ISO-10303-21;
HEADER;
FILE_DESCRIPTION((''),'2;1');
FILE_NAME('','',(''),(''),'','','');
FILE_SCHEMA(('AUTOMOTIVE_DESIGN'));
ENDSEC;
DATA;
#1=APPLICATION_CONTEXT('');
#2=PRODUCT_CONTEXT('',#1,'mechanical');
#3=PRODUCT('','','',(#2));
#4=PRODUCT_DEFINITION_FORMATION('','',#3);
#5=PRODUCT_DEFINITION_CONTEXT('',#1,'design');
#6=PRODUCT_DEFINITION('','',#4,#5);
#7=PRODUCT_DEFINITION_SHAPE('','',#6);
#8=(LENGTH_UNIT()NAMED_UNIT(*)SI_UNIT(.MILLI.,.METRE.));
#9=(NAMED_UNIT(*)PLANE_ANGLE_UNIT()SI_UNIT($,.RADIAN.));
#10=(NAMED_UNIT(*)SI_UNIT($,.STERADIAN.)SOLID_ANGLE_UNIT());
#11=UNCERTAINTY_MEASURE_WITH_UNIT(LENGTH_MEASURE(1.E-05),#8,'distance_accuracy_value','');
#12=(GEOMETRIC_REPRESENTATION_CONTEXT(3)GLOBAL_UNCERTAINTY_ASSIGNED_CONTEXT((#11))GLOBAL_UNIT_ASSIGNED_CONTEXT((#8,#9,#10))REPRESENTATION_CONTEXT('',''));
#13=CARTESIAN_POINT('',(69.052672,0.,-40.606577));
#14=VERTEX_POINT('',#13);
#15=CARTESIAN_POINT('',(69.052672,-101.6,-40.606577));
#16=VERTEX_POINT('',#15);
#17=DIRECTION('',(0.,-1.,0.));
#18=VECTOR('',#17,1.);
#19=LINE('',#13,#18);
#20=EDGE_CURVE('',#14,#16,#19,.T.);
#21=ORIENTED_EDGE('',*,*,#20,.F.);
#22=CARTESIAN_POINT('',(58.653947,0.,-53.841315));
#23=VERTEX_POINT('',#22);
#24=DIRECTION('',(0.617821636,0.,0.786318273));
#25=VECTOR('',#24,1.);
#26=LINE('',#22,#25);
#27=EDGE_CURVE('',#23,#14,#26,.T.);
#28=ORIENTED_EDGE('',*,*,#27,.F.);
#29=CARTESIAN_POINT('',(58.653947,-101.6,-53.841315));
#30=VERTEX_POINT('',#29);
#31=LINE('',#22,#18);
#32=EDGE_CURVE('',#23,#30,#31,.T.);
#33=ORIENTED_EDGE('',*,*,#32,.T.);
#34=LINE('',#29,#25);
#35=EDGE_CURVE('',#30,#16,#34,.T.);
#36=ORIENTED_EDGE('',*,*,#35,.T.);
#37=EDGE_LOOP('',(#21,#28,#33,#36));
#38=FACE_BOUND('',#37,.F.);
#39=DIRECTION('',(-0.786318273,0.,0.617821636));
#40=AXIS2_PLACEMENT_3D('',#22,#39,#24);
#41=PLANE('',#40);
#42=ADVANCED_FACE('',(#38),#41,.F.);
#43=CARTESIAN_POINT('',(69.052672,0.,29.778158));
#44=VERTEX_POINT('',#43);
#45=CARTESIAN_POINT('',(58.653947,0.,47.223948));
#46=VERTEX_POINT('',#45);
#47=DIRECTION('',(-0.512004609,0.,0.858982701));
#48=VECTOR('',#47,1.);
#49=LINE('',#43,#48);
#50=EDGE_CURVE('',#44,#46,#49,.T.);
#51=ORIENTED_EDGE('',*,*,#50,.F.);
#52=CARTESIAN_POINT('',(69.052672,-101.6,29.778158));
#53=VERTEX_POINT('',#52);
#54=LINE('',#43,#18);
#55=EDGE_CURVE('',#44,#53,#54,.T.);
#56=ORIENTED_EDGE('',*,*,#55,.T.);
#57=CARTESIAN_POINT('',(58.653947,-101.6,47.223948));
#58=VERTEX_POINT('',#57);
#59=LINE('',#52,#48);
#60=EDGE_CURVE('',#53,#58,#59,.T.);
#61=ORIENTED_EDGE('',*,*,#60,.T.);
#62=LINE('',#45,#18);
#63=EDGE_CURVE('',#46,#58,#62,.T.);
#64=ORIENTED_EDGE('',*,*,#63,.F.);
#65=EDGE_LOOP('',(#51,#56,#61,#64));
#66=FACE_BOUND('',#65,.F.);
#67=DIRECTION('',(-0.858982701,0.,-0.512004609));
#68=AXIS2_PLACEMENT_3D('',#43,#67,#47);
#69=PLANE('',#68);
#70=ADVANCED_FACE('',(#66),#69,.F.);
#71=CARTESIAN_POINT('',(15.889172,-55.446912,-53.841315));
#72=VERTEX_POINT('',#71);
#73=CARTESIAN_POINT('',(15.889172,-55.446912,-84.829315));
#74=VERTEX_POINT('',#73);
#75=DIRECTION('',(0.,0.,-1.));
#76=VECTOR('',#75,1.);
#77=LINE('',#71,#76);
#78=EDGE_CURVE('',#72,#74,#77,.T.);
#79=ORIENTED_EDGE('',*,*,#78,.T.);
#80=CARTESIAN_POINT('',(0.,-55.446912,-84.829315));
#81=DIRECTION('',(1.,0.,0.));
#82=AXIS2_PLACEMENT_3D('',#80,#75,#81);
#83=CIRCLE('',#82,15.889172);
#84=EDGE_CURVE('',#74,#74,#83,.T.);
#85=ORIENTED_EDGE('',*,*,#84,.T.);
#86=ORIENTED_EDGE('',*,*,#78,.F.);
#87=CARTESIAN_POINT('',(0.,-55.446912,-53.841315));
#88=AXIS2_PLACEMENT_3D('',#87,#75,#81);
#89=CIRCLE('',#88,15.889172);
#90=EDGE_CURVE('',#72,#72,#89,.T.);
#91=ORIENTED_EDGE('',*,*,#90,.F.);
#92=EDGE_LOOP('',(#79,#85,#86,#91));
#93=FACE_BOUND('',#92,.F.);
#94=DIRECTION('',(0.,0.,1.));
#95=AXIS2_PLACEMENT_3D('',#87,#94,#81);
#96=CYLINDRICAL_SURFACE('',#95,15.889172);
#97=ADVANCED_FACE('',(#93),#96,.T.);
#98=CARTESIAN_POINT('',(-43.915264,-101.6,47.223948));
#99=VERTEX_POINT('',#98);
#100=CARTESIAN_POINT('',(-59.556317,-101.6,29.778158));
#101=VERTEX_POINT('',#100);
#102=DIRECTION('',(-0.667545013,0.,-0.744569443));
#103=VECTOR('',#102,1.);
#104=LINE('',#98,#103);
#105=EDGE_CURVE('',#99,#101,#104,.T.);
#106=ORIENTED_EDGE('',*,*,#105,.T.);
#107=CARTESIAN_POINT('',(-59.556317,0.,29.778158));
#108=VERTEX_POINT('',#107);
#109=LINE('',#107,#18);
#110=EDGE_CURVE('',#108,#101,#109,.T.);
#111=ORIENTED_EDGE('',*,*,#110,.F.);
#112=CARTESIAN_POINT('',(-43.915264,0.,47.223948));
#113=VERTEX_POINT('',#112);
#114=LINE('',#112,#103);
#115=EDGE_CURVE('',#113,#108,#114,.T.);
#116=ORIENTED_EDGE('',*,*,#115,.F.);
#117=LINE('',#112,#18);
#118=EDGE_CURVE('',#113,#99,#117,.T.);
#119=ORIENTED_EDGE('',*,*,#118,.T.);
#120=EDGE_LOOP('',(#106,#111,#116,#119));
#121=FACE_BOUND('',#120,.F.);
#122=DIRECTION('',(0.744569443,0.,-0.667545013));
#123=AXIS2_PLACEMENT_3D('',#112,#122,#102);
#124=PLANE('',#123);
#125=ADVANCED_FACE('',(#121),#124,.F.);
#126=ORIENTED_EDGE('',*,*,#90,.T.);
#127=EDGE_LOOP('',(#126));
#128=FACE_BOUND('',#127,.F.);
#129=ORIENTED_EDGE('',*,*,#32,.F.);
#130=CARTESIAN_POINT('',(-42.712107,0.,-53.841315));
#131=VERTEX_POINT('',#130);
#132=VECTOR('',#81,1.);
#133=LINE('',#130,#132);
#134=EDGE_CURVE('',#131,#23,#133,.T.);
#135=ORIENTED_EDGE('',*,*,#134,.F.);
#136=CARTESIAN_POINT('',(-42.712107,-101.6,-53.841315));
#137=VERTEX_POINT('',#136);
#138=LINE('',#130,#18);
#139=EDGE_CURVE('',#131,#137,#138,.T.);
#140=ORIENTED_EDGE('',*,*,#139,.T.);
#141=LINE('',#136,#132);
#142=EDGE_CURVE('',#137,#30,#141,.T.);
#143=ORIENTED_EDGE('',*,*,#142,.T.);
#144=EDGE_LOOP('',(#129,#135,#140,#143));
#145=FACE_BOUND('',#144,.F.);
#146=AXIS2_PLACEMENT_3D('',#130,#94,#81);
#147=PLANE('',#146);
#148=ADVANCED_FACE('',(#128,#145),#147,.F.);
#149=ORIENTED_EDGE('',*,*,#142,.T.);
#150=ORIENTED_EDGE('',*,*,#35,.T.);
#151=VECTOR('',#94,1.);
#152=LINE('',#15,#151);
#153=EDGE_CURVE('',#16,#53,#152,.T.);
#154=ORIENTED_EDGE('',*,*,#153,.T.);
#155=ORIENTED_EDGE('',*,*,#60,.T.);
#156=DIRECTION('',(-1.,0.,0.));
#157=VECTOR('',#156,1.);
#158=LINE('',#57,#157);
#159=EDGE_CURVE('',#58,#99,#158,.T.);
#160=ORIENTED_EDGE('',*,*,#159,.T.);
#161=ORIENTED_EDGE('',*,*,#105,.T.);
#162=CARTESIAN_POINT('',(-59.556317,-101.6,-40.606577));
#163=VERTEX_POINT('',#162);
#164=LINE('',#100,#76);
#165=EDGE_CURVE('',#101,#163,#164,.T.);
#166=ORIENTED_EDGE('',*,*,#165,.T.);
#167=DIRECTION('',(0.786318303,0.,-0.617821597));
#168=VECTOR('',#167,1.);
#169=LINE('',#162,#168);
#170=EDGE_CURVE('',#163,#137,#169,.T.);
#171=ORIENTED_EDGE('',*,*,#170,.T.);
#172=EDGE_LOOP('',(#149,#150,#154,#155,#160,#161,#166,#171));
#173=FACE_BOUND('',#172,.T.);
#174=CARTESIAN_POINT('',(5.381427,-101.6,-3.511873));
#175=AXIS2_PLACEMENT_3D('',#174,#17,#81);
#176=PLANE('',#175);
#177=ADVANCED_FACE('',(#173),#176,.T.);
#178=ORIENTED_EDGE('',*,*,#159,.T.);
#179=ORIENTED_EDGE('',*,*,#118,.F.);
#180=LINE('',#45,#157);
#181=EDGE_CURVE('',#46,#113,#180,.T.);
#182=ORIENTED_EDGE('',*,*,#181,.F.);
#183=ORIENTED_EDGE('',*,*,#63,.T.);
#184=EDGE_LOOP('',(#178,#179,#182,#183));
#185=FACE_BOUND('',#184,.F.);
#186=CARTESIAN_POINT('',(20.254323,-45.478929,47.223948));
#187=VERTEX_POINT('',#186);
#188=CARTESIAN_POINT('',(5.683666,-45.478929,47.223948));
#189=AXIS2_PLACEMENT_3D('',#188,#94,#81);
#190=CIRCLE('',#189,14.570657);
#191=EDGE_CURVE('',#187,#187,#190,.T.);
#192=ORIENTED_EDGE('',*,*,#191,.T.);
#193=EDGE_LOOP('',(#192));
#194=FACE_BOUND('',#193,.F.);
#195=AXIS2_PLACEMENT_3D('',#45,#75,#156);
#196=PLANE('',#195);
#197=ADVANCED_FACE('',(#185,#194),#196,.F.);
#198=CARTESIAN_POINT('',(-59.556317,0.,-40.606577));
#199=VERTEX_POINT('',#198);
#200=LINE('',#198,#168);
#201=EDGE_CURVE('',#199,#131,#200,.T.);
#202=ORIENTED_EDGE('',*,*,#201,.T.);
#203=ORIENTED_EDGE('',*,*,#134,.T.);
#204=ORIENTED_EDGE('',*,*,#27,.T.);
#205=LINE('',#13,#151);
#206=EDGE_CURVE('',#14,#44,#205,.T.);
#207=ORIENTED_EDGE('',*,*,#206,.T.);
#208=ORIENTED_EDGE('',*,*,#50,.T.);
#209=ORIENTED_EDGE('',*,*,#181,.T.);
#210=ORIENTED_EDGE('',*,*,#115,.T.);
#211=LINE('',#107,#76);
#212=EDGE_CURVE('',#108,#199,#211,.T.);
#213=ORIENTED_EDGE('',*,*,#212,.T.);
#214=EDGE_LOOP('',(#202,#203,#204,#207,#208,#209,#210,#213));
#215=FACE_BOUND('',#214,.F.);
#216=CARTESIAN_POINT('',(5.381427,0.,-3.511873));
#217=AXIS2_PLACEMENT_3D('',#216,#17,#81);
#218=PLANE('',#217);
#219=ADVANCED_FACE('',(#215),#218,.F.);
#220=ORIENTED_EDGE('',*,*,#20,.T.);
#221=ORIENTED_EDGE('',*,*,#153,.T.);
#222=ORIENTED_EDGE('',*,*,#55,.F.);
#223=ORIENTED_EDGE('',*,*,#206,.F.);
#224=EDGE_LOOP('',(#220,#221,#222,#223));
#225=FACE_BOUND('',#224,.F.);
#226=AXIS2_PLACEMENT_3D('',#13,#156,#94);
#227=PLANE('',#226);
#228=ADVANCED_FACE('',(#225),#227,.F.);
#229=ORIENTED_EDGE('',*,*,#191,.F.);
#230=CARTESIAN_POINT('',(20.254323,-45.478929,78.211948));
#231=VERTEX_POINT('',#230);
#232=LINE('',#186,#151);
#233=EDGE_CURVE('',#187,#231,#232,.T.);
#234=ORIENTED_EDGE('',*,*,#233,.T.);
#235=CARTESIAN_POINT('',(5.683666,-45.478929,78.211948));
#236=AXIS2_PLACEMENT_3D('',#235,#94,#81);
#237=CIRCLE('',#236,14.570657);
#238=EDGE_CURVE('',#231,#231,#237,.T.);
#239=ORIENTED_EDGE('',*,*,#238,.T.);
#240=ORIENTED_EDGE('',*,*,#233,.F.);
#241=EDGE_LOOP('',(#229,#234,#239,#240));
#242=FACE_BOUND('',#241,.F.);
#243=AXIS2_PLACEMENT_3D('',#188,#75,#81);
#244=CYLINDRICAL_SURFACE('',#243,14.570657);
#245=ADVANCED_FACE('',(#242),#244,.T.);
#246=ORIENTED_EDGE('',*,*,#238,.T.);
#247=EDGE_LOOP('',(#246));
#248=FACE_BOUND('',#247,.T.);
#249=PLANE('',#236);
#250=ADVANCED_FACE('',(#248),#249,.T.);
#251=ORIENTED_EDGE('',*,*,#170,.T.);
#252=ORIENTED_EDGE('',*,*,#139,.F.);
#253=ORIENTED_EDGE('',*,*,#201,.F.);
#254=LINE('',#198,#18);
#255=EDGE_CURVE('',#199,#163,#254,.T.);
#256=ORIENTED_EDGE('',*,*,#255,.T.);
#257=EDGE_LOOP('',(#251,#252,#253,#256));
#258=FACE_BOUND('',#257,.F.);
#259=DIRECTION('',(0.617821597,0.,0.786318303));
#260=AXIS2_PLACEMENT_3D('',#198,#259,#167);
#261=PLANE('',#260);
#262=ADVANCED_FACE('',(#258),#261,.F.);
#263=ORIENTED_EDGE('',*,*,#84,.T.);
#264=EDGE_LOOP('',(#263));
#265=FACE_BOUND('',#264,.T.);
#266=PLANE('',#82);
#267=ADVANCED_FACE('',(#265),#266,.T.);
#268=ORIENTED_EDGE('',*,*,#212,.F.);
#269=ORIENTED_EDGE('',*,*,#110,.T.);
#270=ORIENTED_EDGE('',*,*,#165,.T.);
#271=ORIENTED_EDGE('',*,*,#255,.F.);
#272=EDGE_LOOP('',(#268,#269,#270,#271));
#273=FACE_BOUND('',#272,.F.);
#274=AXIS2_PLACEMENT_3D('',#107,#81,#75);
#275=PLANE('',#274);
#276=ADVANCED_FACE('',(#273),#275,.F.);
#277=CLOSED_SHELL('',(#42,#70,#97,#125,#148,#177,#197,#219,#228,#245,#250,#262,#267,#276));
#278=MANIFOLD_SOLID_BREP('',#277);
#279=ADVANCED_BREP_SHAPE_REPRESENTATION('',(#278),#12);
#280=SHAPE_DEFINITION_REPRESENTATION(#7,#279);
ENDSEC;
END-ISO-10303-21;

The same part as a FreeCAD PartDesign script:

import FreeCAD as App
import Part
import Sketcher
from FreeCAD import Vector
Q = App.Units.Quantity


def add_polygon(sketch, points):
    """Adds a closed chain of lines whose ends are joined by coincident constraints."""
    first, n = sketch.GeometryCount, len(points)
    for a, b in zip(points, points[1:] + points[:1]):
        sketch.addGeometry(Part.LineSegment(App.Vector(*a, 0), App.Vector(*b, 0)), False)
    for i in range(n):
        sketch.addConstraint(Sketcher.Constraint("Coincident", first + i, 2, first + (i + 1) % n, 1))

doc = App.newDocument("Part")
body = doc.addObject("PartDesign::Body", "Body")

# Sketch on XZ plane
sketch1 = body.newObject("Sketcher::SketchObject", "Sketch")
sketch1.AttachmentSupport = (doc.getObject("XZ_Plane"), [""])
sketch1.MapMode = "FlatFace"
add_polygon(sketch1, [(59, 47), (-44, 47), (-60, 30), (-60, -41), (-43, -54), (59, -54), (69, -41), (69, 30)])  # lines 0-7
sketch1.addConstraint([
    Sketcher.Constraint("Horizontal", 0),
    Sketcher.Constraint("Vertical", 2),
    Sketcher.Constraint("Horizontal", 4),
    Sketcher.Constraint("Vertical", 6),
    Sketcher.Constraint("Perpendicular", 3, 5),
    Sketcher.Constraint("Horizontal", 2, 2, 5, 2),
    Sketcher.Constraint("Horizontal", 1, 2, 6, 2),
    Sketcher.Constraint("Vertical", 4, 2, 7, 2),
    Sketcher.Constraint("DistanceX", 0, 2, 0, 1, 102.569211),
    Sketcher.Constraint("Distance", 1, 23.430709),
    Sketcher.Constraint("DistanceX", 4, 1, 4, 2, 101.366054),
    Sketcher.Constraint("DistanceY", 2, 2, 2, 1, 70.384735),
    Sketcher.Constraint("DistanceY", -1, 1, 1, 2, 29.778158),
    Sketcher.Constraint("DistanceX", -1, 1, 5, 2, 69.052672),
    Sketcher.Constraint("DistanceY", 1, 2, 0, 2, 17.44579),
    Sketcher.Constraint("DistanceX", 3, 2, 5, 2, 111.764779),
])
pad1 = body.newObject("PartDesign::Pad", "Pad")
pad1.Profile = sketch1
pad1.Length = Q("4 in")

# Sketch on XY plane
sketch2 = body.newObject("Sketcher::SketchObject", "Sketch001")
sketch2.AttachmentSupport = (doc.getObject("XY_Plane"), [""])
sketch2.MapMode = "FlatFace"
sketch2.AttachmentOffset = App.Placement(Vector(0, 0, 47.223948), App.Rotation())
sketch2.addGeometry(Part.Circle(Vector(6, -45, 0), Vector(0, 0, 1), 15), False)
sketch2.addConstraint([
    Sketcher.Constraint("Diameter", 0, 29.141314),
    Sketcher.Constraint("DistanceY", 0, 3, -1, 1, 45.478929),
    Sketcher.Constraint("DistanceX", -1, 1, 0, 3, 5.683666),
])
pad2 = body.newObject("PartDesign::Pad", "Pad001")
pad2.Profile = sketch2
pad2.Length = Q("1.22 in")

# Sketch on XY plane
sketch3 = body.newObject("Sketcher::SketchObject", "Sketch002")
sketch3.AttachmentSupport = (doc.getObject("XY_Plane"), [""])
sketch3.MapMode = "FlatFace"
sketch3.AttachmentOffset = App.Placement(Vector(0, 0, -53.841315), App.Rotation())
sketch3.addGeometry(Part.Circle(Vector(0, -55, 0), Vector(0, 0, 1), 16), False)
sketch3.addConstraint([
    Sketcher.Constraint("PointOnObject", 0, 3, -2),
    Sketcher.Constraint("Diameter", 0, 31.778344),
    Sketcher.Constraint("DistanceY", 0, 3, -1, 1, 55.446912),
])
pad3 = body.newObject("PartDesign::Pad", "Pad002")
pad3.Profile = sketch3
pad3.Length = Q("1.22 in")
pad3.Reversed = True

doc.recompute()
